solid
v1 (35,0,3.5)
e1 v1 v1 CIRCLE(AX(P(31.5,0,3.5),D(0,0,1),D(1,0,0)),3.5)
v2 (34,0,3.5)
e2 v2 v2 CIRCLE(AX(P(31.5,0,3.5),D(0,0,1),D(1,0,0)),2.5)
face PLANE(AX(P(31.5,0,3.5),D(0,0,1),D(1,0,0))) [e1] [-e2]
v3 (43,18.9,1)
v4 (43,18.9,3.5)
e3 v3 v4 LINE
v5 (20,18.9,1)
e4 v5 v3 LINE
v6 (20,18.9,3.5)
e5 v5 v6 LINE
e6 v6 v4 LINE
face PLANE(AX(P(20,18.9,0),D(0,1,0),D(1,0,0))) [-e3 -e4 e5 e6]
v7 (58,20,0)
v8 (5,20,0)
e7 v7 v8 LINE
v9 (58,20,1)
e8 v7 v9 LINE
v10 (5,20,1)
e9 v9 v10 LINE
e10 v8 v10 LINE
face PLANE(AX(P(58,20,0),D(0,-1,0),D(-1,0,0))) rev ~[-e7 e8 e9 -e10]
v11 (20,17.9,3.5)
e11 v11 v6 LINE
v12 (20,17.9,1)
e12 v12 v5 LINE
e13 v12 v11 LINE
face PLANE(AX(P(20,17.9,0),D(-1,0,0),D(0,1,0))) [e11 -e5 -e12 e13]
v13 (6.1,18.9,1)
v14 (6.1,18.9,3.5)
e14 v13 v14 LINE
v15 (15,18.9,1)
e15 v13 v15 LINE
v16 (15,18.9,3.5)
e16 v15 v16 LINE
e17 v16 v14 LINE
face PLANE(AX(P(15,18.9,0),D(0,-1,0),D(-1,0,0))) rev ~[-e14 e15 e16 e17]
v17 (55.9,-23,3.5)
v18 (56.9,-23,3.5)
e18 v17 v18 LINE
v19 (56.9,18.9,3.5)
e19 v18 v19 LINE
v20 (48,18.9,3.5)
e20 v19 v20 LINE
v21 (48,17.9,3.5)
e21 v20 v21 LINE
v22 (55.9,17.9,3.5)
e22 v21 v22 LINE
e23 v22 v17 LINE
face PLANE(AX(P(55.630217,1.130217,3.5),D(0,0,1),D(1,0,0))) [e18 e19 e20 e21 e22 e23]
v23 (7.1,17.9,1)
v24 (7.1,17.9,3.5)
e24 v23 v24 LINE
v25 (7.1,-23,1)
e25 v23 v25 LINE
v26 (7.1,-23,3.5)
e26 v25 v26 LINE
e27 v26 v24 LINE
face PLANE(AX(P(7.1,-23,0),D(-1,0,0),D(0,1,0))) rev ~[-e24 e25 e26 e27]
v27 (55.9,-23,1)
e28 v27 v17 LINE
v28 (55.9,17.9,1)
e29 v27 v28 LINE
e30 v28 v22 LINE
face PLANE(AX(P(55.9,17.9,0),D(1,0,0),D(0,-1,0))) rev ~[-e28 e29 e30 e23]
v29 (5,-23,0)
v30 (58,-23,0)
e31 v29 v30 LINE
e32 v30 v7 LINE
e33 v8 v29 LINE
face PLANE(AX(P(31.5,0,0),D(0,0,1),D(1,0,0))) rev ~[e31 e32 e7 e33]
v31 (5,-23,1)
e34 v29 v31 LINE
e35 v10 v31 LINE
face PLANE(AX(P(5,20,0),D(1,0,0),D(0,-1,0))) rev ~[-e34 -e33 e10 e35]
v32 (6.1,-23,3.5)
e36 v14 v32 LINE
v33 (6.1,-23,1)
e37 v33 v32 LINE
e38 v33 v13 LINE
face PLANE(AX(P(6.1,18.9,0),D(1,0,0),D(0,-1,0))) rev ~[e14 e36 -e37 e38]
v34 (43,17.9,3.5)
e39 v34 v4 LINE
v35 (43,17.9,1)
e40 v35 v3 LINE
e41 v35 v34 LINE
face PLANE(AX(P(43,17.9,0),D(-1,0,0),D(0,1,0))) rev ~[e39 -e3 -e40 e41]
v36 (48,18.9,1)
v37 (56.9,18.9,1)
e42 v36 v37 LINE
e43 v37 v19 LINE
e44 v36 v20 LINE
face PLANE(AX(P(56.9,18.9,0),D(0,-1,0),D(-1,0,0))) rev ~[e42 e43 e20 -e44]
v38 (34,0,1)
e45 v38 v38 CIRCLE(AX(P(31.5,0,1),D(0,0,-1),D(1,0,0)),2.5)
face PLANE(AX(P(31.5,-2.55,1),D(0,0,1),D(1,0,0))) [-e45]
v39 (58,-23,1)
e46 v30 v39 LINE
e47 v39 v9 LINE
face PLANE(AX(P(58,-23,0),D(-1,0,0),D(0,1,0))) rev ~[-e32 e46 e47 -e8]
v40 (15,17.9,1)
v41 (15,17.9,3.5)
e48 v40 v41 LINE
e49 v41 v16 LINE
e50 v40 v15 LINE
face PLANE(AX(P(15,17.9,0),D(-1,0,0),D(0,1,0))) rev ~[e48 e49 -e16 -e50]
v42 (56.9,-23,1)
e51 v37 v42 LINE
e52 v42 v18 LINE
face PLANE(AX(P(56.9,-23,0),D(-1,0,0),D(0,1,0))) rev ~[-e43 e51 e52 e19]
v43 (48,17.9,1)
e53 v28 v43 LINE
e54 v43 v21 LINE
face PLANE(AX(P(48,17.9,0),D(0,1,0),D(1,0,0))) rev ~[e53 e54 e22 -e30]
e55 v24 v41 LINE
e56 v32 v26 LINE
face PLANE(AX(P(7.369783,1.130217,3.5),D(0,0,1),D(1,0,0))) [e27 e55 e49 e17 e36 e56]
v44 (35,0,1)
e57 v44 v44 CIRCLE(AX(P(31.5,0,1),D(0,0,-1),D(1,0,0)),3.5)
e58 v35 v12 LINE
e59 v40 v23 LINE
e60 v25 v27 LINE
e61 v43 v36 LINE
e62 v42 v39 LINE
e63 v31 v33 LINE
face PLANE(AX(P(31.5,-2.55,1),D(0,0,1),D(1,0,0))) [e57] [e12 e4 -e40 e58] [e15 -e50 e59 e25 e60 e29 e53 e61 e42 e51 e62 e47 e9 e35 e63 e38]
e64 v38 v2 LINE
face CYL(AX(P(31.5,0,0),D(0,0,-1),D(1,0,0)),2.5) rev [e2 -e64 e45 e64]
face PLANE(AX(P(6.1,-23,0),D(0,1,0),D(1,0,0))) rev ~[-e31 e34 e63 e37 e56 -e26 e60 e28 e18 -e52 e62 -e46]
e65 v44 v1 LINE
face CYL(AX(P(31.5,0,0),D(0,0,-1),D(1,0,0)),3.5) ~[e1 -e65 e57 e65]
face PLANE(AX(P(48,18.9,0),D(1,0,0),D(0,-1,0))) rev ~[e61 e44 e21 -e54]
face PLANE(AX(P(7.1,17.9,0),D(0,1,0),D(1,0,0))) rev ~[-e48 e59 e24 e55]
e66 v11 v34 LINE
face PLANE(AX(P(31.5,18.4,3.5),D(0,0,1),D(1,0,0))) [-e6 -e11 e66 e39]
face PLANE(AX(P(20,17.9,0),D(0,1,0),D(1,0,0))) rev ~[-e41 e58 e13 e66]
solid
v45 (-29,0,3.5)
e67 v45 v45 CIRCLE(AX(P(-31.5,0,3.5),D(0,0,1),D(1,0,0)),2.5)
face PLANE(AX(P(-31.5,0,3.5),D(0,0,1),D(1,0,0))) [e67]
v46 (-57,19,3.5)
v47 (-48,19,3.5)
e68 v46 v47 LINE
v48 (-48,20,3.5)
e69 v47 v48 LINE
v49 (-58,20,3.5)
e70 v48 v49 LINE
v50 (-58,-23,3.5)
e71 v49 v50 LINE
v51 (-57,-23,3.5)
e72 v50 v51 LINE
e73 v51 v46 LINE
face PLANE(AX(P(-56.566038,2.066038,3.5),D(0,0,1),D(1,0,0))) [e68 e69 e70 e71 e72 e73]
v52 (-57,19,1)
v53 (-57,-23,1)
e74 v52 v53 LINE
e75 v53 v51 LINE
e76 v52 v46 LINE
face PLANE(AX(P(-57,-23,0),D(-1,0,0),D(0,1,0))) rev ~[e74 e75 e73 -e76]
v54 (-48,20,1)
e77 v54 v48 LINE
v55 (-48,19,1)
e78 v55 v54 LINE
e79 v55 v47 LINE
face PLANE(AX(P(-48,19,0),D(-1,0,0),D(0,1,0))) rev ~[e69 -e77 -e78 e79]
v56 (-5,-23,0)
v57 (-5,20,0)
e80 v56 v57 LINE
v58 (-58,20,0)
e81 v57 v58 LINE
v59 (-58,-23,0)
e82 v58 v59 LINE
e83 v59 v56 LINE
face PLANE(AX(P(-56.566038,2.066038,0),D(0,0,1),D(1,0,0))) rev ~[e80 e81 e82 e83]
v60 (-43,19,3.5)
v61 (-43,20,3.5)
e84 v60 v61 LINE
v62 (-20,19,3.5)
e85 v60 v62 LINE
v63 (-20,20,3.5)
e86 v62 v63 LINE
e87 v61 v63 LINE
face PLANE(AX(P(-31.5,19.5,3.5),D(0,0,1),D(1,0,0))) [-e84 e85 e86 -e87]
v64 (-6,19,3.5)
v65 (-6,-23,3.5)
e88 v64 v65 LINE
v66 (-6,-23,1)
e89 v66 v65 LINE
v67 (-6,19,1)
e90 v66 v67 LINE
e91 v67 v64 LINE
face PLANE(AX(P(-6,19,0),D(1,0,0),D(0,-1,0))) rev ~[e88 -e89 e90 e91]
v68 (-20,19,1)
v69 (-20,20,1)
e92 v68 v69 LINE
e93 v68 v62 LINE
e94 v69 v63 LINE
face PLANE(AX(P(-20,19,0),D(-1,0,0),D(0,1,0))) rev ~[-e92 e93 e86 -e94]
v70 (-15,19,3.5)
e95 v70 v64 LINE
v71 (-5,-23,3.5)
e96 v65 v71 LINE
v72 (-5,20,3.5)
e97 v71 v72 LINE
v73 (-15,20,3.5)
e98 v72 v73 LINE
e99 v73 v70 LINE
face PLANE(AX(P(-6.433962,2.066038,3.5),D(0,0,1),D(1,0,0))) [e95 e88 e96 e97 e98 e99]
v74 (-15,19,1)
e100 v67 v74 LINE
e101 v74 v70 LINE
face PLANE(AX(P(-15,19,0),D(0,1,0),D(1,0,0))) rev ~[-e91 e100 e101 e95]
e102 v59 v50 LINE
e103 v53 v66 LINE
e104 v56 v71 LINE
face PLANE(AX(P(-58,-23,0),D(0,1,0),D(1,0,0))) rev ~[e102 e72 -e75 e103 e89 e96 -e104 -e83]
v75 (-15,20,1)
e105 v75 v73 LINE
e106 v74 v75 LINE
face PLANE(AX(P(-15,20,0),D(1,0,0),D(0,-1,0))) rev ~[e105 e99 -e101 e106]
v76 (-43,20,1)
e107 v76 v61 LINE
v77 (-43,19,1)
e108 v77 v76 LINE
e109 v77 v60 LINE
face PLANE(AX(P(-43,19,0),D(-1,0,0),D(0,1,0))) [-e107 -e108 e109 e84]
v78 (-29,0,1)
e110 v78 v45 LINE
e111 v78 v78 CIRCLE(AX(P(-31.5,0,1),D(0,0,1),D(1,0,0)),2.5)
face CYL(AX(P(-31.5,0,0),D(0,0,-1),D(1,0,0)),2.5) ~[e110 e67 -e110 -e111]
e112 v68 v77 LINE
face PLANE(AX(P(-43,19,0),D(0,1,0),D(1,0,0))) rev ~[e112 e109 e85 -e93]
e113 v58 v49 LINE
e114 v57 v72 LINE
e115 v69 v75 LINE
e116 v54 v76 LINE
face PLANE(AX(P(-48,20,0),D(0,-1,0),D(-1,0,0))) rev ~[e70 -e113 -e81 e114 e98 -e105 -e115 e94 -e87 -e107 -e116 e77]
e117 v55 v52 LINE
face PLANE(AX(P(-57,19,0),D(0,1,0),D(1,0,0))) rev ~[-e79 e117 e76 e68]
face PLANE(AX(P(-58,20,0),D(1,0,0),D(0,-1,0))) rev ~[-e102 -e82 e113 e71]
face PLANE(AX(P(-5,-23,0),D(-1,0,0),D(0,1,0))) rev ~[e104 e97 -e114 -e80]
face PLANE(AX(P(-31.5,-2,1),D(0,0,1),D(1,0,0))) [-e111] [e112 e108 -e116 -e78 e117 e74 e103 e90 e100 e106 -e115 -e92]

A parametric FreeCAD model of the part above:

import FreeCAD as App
import Part
import Sketcher


def add_polygon(sketch, points):
    """Adds a closed chain of lines whose ends are joined by coincident constraints."""
    first, n = sketch.GeometryCount, len(points)
    for a, b in zip(points, points[1:] + points[:1]):
        sketch.addGeometry(Part.LineSegment(App.Vector(*a, 0), App.Vector(*b, 0)), False)
    for i in range(n):
        sketch.addConstraint(Sketcher.Constraint("Coincident", first + i, 2, first + (i + 1) % n, 1))

doc = App.newDocument("Part")
body = doc.addObject("PartDesign::Body", "Body")

# Sketch on XY plane
sketch1 = body.newObject("Sketcher::SketchObject", "Sketch")
sketch1.AttachmentSupport = (doc.getObject("XY_Plane"), [""])
sketch1.MapMode = "FlatFace"
add_polygon(sketch1, [(-57, 19), (-57, -23), (-6, -23), (-6, 19), (-15, 19), (-15, 20), (-20, 20), (-20, 19), (-43, 19), (-43, 20), (-48, 20), (-48, 19)])  # lines 0-11
sketch1.addGeometry(Part.Circle(App.Vector(-31.5, 0, 0), App.Vector(0, 0, 1), 2.5), False)  # 12
sketch1.addConstraint([
    Sketcher.Constraint("Vertical", 0),
    Sketcher.Constraint("Horizontal", 1),
    Sketcher.Constraint("Vertical", 2),
    Sketcher.Constraint("Horizontal", 3),
    Sketcher.Constraint("Vertical", 4),
    Sketcher.Constraint("Horizontal", 5),
    Sketcher.Constraint("Vertical", 6),
    Sketcher.Constraint("Horizontal", 7),
    Sketcher.Constraint("Vertical", 8),
    Sketcher.Constraint("Horizontal", 9),
    Sketcher.Constraint("Vertical", 10),
    Sketcher.Constraint("Horizontal", 11),
    Sketcher.Constraint("PointOnObject", 12, 3, -1),
    Sketcher.Constraint("Horizontal", 3, 2, 6, 2),
    Sketcher.Constraint("Horizontal", 5, 2, 8, 2),
    Sketcher.Constraint("Horizontal", 7, 2, 10, 2),
    Sketcher.Constraint("Equal", 5, 9),
    Sketcher.Constraint("Equal", 3, 11),
    Sketcher.Constraint("Diameter", 12, 5.0),
    Sketcher.Constraint("DistanceX", 1, 1, 1, 2, 51.0),
    Sketcher.Constraint("DistanceX", 3, 2, 3, 1, 9.0),
    Sketcher.Constraint("DistanceX", 5, 2, 5, 1, 5.0),
    Sketcher.Constraint("DistanceY", 0, 2, 0, 1, 42.0),
    Sketcher.Constraint("DistanceY", 4, 1, 4, 2, 1.0),
    Sketcher.Constraint("DistanceX", 0, 2, -1, 1, 57.0),
    Sketcher.Constraint("DistanceY", 0, 2, -1, 1, 23.0),
    Sketcher.Constraint("DistanceX", 12, 3, -1, 1, 31.5),
])
pad1 = body.newObject("PartDesign::Pad", "Pad")
pad1.Profile = sketch1
pad1.Length = 1

# Sketch on XY plane
sketch2 = body.newObject("Sketcher::SketchObject", "Sketch001")
sketch2.AttachmentSupport = (doc.getObject("XY_Plane"), [""])
sketch2.MapMode = "FlatFace"
add_polygon(sketch2, [(-58, 20), (-58, -23), (-57, -23), (-57, 19), (-48, 19), (-48, 20)])  # lines 0-5
add_polygon(sketch2, [(-43, 20), (-43, 19), (-20, 19), (-20, 20)])  # lines 6-9
add_polygon(sketch2, [(-6, 19), (-6, -23), (-5, -23), (-5, 20), (-15, 20), (-15, 19)])  # lines 10-15
sketch2.addConstraint([
    Sketcher.Constraint("Vertical", 0),
    Sketcher.Constraint("Horizontal", 1),
    Sketcher.Constraint("Vertical", 2),
    Sketcher.Constraint("Horizontal", 3),
    Sketcher.Constraint("Vertical", 4),
    Sketcher.Constraint("Horizontal", 5),
    Sketcher.Constraint("Vertical", 6),
    Sketcher.Constraint("Horizontal", 7),
    Sketcher.Constraint("Vertical", 8),
    Sketcher.Constraint("Horizontal", 9),
    Sketcher.Constraint("Vertical", 10),
    Sketcher.Constraint("Horizontal", 11),
    Sketcher.Constraint("Vertical", 12),
    Sketcher.Constraint("Horizontal", 13),
    Sketcher.Constraint("Vertical", 14),
    Sketcher.Constraint("Horizontal", 15),
    Sketcher.Constraint("Horizontal", 3, 2, 6, 2),
    Sketcher.Constraint("Horizontal", 5, 2, 8, 2),
    Sketcher.Constraint("Horizontal", 1, 2, 10, 2),
    Sketcher.Constraint("Horizontal", 9, 2, 12, 2),
    Sketcher.Constraint("Horizontal", 7, 2, 14, 2),
    Sketcher.Constraint("Equal", 1, 11),
    Sketcher.Constraint("Equal", 5, 13),
    Sketcher.Constraint("Equal", 11, 4),
    Sketcher.Constraint("DistanceX", 1, 1, 1, 2, 1.0),
    Sketcher.Constraint("DistanceX", 3, 1, 3, 2, 9.0),
    Sketcher.Constraint("DistanceX", 7, 1, 7, 2, 23.0),
    Sketcher.Constraint("DistanceY", 0, 2, 0, 1, 43.0),
    Sketcher.Constraint("DistanceX", 0, 2, -1, 1, 58.0),
    Sketcher.Constraint("DistanceY", 0, 2, -1, 1, 23.0),
    Sketcher.Constraint("DistanceX", 6, 2, -1, 1, 43.0),
    Sketcher.Constraint("DistanceX", 10, 2, -1, 1, 6.0),
])
pad2 = body.newObject("PartDesign::Pad", "Pad001")
pad2.Profile = sketch2
pad2.Length = 3.5

# Sketch on XY plane
sketch3 = body.newObject("Sketcher::SketchObject", "Sketch002")
sketch3.AttachmentSupport = (doc.getObject("XY_Plane"), [""])
sketch3.MapMode = "FlatFace"
sketch3.addGeometry(Part.Circle(App.Vector(-31.5, 0, 0), App.Vector(0, 0, 1), 2.5), False)
sketch3.addConstraint([
    Sketcher.Constraint("PointOnObject", 0, 3, -1),
    Sketcher.Constraint("Diameter", 0, 5.0),
    Sketcher.Constraint("DistanceX", 0, 3, -1, 1, 31.5),
])
pad3 = body.newObject("PartDesign::Pad", "Pad002")
pad3.Profile = sketch3
pad3.Length = 3.5
body2 = doc.addObject("PartDesign::Body", "Body001")

# Sketch on XY plane
sketch4 = body2.newObject("Sketcher::SketchObject", "Sketch003")
sketch4.AttachmentSupport = (doc.getObject("XY_Plane001"), [""])
sketch4.MapMode = "FlatFace"
add_polygon(sketch4, [(7.1, 17.9), (7.1, -23), (55.9, -23), (55.9, 17.9), (48, 17.9), (48, 18.9), (56.9, 18.9), (56.9, -23), (58, -23), (58, 20), (5, 20), (5, -23), (6.1, -23), (6.1, 18.9), (15, 18.9), (15, 17.9)])  # lines 0-15
add_polygon(sketch4, [(43, 17.9), (20, 17.9), (20, 18.9), (43, 18.9)])  # lines 16-19
sketch4.addConstraint([
    Sketcher.Constraint("Vertical", 0),
    Sketcher.Constraint("Horizontal", 1),
    Sketcher.Constraint("Vertical", 2),
    Sketcher.Constraint("Horizontal", 3),
    Sketcher.Constraint("Vertical", 4),
    Sketcher.Constraint("Horizontal", 5),
    Sketcher.Constraint("Vertical", 6),
    Sketcher.Constraint("Horizontal", 7),
    Sketcher.Constraint("Vertical", 8),
    Sketcher.Constraint("Horizontal", 9),
    Sketcher.Constraint("Vertical", 10),
    Sketcher.Constraint("Horizontal", 11),
    Sketcher.Constraint("Vertical", 12),
    Sketcher.Constraint("Horizontal", 13),
    Sketcher.Constraint("Vertical", 14),
    Sketcher.Constraint("Horizontal", 15),
    Sketcher.Constraint("Horizontal", 16),
    Sketcher.Constraint("Vertical", 17),
    Sketcher.Constraint("Horizontal", 18),
    Sketcher.Constraint("Vertical", 19),
    Sketcher.Constraint("Horizontal", 1, 2, 6, 2),
    Sketcher.Constraint("Horizontal", 7, 2, 10, 2),
    Sketcher.Constraint("Horizontal", 5, 2, 12, 2),
    Sketcher.Constraint("Horizontal", 3, 2, 14, 2),
    Sketcher.Constraint("Horizontal", 15, 2, 16, 2),
    Sketcher.Constraint("Horizontal", 13, 2, 17, 2),
    Sketcher.Constraint("Equal", 7, 11),
    Sketcher.Constraint("Equal", 5, 13),
    Sketcher.Constraint("Equal", 3, 15),
    Sketcher.Constraint("DistanceX", 9, 2, 9, 1, 53.0),
    Sketcher.Constraint("DistanceX", 16, 2, 16, 1, 23.0),
    Sketcher.Constraint("DistanceY", 4, 1, 4, 2, 1.0),
    Sketcher.Constraint("DistanceY", 8, 1, 8, 2, 43.0),
    Sketcher.Constraint("DistanceX", 1, 1, 1, 2, 48.8),
    Sketcher.Constraint("DistanceX", 3, 2, 3, 1, 7.9),
    Sketcher.Constraint("DistanceX", 5, 1, 5, 2, 8.9),
    Sketcher.Constraint("DistanceY", 0, 2, 0, 1, 40.9),
    Sketcher.Constraint("DistanceY", 0, 2, -1, 1, 23.0),
    Sketcher.Constraint("DistanceX", -1, 1, 3, 2, 48.0),
    Sketcher.Constraint("DistanceX", -1, 1, 16, 2, 20.0),
])
pad4 = body2.newObject("PartDesign::Pad", "Pad003")
pad4.Profile = sketch4
pad4.Length = 1

# Sketch on XY plane
sketch5 = body2.newObject("Sketcher::SketchObject", "Sketch004")
sketch5.AttachmentSupport = (doc.getObject("XY_Plane001"), [""])
sketch5.MapMode = "FlatFace"
add_polygon(sketch5, [(6.1, 18.9), (6.1, -23), (7.1, -23), (7.1, 17.9), (15, 17.9), (15, 18.9)])  # lines 0-5
add_polygon(sketch5, [(20, 18.9), (20, 17.9), (43, 17.9), (43, 18.9)])  # lines 6-9
add_polygon(sketch5, [(55.9, 17.9), (55.9, -23), (56.9, -23), (56.9, 18.9), (48, 18.9), (48, 17.9)])  # lines 10-15
sketch5.addConstraint([
    Sketcher.Constraint("Vertical", 0),
    Sketcher.Constraint("Horizontal", 1),
    Sketcher.Constraint("Vertical", 2),
    Sketcher.Constraint("Horizontal", 3),
    Sketcher.Constraint("Vertical", 4),
    Sketcher.Constraint("Horizontal", 5),
    Sketcher.Constraint("Vertical", 6),
    Sketcher.Constraint("Horizontal", 7),
    Sketcher.Constraint("Vertical", 8),
    Sketcher.Constraint("Horizontal", 9),
    Sketcher.Constraint("Vertical", 10),
    Sketcher.Constraint("Horizontal", 11),
    Sketcher.Constraint("Vertical", 12),
    Sketcher.Constraint("Horizontal", 13),
    Sketcher.Constraint("Vertical", 14),
    Sketcher.Constraint("Horizontal", 15),
    Sketcher.Constraint("Horizontal", 3, 2, 6, 2),
    Sketcher.Constraint("Horizontal", 5, 2, 8, 2),
    Sketcher.Constraint("Horizontal", 1, 2, 10, 2),
    Sketcher.Constraint("Horizontal", 9, 2, 12, 2),
    Sketcher.Constraint("Horizontal", 7, 2, 14, 2),
    Sketcher.Constraint("Equal", 1, 11),
    Sketcher.Constraint("Equal", 5, 13),
    Sketcher.Constraint("Equal", 11, 4),
    Sketcher.Constraint("DistanceX", 1, 1, 1, 2, 1.0),
    Sketcher.Constraint("DistanceX", 7, 1, 7, 2, 23.0),
    Sketcher.Constraint("DistanceX", 3, 1, 3, 2, 7.9),
    Sketcher.Constraint("DistanceY", 0, 2, 0, 1, 41.9),
    Sketcher.Constraint("DistanceY", 0, 2, -1, 1, 23.0),
    Sketcher.Constraint("DistanceX", -1, 1, 3, 2, 15.0),
    Sketcher.Constraint("DistanceX", -1, 1, 6, 2, 20.0),
    Sketcher.Constraint("DistanceX", -1, 1, 13, 2, 48.0),
])
pad5 = body2.newObject("PartDesign::Pad", "Pad004")
pad5.Profile = sketch5
pad5.Length = 3.5

# Sketch on XY plane
sketch6 = body2.newObject("Sketcher::SketchObject", "Sketch005")
sketch6.AttachmentSupport = (doc.getObject("XY_Plane001"), [""])
sketch6.MapMode = "FlatFace"
sketch6.addGeometry([
    Part.Circle(App.Vector(31.5, 0, 0), App.Vector(0, 0, 1), 3.5),
    Part.Circle(App.Vector(31.5, 0, 0), App.Vector(0, 0, 1), 2.5),
], False)
sketch6.addConstraint([
    Sketcher.Constraint("Coincident", 1, 3, 0, 3),
    Sketcher.Constraint("PointOnObject", 0, 3, -1),
    Sketcher.Constraint("Diameter", 0, 7.0),
    Sketcher.Constraint("Diameter", 1, 5.0),
    Sketcher.Constraint("DistanceX", -1, 1, 0, 3, 31.5),
])
pad6 = body2.newObject("PartDesign::Pad", "Pad005")
pad6.Profile = sketch6
pad6.Length = 3.5

doc.recompute()
